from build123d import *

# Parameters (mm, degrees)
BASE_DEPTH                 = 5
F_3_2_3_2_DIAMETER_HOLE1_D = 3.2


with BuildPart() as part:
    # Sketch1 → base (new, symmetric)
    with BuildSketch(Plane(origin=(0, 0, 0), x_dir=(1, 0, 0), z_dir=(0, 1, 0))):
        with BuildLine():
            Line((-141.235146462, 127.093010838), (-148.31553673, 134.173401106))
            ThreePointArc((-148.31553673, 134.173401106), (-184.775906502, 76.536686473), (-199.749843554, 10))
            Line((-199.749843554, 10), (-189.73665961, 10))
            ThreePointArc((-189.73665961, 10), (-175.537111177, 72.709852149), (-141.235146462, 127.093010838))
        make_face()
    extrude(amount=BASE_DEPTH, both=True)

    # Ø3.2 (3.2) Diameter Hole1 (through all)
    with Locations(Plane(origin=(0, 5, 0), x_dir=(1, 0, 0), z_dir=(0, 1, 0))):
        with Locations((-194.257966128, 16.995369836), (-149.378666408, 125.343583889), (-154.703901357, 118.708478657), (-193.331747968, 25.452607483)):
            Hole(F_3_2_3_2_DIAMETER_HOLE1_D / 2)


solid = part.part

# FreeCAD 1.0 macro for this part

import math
import FreeCAD as App
import Part
import Sketcher
from FreeCAD import Vector
Q = App.Units.Quantity

doc = App.newDocument("Part")
body = doc.addObject("PartDesign::Body", "Body")

# Sketch on XZ plane
sketch1 = body.newObject("Sketcher::SketchObject", "Sketch")
sketch1.AttachmentSupport = (doc.getObject("XZ_Plane"), [""])
sketch1.MapMode = "FlatFace"
sketch1.addGeometry([
    Part.LineSegment(Vector(-141.235146, -127.093011, 0), Vector(-148.315537, -134.173401, 0)),
    Part.ArcOfCircle(Part.Circle(Vector(0, 0, 0), Vector(0, 0, 1), 200), math.radians(-177.134016), math.radians(-137.865984)),
    Part.LineSegment(Vector(-199.749844, -10, 0), Vector(-189.73666, -10, 0)),
    Part.ArcOfCircle(Part.Circle(Vector(0, 0, 0), Vector(0, 0, 1), 190), math.radians(-176.983039), math.radians(-138.016961)),
], False)
sketch1.addConstraint([
    Sketcher.Constraint("Coincident", 0, 2, 1, 2),
    Sketcher.Constraint("Coincident", 1, 1, 2, 1),
    Sketcher.Constraint("Coincident", 2, 2, 3, 1),
    Sketcher.Constraint("Coincident", 3, 2, 0, 1),
    Sketcher.Constraint("Horizontal", 2),
    Sketcher.Constraint("Coincident", 1, 3, -1, 1),
    Sketcher.Constraint("Coincident", 3, 3, -1, 1),
    Sketcher.Constraint("Radius", 1, 200.0),
    Sketcher.Constraint("Radius", 3, 190.0),
    Sketcher.Constraint("Angle", 0, Q("-135 deg")),
    Sketcher.Constraint("DistanceY", 1, 1, -1, 1, 10.0),
    Sketcher.Constraint("DistanceY", 0, 2, -1, 1, 134.173401),
])
pad1 = body.newObject("PartDesign::Pad", "Pad")
pad1.Profile = sketch1
pad1.Length = 10
pad1.Midplane = True

# Sketch on XZ plane
sketch2 = body.newObject("Sketcher::SketchObject", "Sketch001")
sketch2.AttachmentSupport = (doc.getObject("XZ_Plane"), [""])
sketch2.MapMode = "FlatFace"
sketch2.AttachmentOffset = App.Placement(Vector(0, 0, -5), App.Rotation())
sketch2.addGeometry([
    Part.Circle(Vector(-194.257966, -16.99537, 0), Vector(0, 0, 1), 1.6),
    Part.Circle(Vector(-149.378666, -125.343584, 0), Vector(0, 0, 1), 1.6),
    Part.Circle(Vector(-154.703901, -118.708479, 0), Vector(0, 0, 1), 1.6),
    Part.Circle(Vector(-193.331748, -25.452607, 0), Vector(0, 0, 1), 1.6),
], False)
sketch2.addConstraint([
    Sketcher.Constraint("Equal", 0, 1),
    Sketcher.Constraint("Equal", 1, 2),
    Sketcher.Constraint("Equal", 2, 3),
    Sketcher.Constraint("Diameter", 0, 3.2),
    Sketcher.Constraint("DistanceX", 2, 3, -1, 1, 154.703901),
    Sketcher.Constraint("DistanceX", 0, 3, 1, 3, 44.8793),
    Sketcher.Constraint("DistanceY", 0, 3, -1, 1, 16.99537),
    Sketcher.Constraint("DistanceY", 2, 3, -1, 1, 118.708479),
    Sketcher.Constraint("DistanceX", 0, 3, 3, 3, 0.926218),
    Sketcher.Constraint("DistanceY", 2, 3, 3, 3, 93.255871),
    Sketcher.Constraint("DistanceX", 0, 3, -1, 1, 194.257966),
    Sketcher.Constraint("DistanceY", 1, 3, -1, 1, 125.343584),
])
doc.recompute()
hole = body.newObject("PartDesign::Hole", "Hole")
hole.Profile = sketch2
hole.ThreadType = "None"
hole.Diameter = 3.2
hole.DepthType = "ThroughAll"
hole.Reversed = True

doc.recompute()
